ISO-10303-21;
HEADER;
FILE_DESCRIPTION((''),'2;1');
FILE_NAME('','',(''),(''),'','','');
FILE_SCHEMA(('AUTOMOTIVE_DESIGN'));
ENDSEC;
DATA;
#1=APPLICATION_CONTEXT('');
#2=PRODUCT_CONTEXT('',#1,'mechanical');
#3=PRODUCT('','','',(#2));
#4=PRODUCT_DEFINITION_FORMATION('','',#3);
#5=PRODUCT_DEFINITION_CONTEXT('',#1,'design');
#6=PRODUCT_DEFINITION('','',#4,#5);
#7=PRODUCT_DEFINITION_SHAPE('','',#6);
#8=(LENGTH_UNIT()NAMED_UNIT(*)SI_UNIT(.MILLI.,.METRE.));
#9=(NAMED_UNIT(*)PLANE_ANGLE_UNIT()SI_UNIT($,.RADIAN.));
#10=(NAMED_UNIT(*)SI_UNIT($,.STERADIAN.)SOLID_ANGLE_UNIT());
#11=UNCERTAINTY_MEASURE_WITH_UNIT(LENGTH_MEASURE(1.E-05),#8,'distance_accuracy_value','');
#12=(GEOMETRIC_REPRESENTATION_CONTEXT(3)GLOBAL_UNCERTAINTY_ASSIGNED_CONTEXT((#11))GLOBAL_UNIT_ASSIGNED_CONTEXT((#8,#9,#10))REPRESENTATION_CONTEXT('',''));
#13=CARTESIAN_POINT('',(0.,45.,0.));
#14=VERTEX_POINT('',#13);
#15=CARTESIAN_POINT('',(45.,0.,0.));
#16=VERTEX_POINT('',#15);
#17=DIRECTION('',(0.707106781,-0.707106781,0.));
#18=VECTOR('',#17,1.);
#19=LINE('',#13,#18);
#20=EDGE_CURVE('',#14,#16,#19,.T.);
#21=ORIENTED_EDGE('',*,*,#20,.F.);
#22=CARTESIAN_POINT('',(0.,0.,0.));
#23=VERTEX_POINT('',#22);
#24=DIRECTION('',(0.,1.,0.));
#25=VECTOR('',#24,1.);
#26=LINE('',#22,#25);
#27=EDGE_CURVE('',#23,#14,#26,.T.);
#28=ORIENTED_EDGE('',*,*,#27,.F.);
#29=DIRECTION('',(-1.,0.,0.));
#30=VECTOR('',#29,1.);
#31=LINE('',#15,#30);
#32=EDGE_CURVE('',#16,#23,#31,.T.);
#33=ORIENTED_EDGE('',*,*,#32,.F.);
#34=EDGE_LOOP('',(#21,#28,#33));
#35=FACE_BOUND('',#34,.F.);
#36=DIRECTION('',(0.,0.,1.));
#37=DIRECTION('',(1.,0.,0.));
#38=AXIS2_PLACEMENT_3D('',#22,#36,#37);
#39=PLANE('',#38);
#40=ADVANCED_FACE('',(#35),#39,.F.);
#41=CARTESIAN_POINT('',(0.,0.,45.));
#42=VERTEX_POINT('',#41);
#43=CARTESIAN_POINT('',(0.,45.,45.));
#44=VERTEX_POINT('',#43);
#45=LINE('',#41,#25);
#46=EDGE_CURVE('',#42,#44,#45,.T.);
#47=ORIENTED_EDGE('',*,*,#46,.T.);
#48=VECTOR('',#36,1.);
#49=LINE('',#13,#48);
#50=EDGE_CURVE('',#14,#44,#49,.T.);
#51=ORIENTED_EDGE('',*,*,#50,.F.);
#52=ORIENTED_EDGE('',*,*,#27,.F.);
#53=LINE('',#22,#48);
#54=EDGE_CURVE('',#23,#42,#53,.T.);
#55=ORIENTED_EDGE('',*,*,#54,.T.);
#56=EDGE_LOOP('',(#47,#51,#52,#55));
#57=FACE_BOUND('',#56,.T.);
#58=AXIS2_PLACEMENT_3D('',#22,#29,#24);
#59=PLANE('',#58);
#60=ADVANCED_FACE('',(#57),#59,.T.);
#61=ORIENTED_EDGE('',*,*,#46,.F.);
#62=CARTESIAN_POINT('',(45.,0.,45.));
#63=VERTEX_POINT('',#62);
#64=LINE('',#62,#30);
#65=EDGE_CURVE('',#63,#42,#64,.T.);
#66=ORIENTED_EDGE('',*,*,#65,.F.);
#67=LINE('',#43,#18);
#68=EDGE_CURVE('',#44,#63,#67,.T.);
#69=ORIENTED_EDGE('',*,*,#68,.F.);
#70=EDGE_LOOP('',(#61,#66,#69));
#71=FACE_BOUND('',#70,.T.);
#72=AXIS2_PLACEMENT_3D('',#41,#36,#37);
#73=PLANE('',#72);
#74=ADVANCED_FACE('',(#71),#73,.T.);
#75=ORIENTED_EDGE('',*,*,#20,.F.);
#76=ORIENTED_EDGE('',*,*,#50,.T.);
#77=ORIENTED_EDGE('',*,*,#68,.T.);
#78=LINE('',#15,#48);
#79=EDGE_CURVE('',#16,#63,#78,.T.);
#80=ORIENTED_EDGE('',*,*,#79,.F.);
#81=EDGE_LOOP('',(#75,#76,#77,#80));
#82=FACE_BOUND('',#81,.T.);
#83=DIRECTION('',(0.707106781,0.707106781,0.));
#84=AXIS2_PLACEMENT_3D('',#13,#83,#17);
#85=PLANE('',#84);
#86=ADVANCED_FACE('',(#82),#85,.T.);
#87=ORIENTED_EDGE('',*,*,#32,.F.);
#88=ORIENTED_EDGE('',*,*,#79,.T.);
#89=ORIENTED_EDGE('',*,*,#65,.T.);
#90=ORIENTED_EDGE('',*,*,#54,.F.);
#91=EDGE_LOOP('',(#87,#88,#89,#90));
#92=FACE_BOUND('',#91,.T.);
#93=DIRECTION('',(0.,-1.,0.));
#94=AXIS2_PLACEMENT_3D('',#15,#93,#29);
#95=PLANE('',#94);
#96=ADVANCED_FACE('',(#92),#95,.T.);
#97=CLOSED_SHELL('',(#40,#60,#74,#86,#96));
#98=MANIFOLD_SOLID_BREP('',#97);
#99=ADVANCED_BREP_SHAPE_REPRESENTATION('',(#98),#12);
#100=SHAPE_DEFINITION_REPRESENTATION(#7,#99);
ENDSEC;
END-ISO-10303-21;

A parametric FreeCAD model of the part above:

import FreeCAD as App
import Part
import Sketcher

V = App.Vector

doc = App.newDocument("Part")
params = doc.addObject("Spreadsheet::Sheet", "Params")
for row, (alias, value) in enumerate([
    ("sketch1_width", "45 mm"),
    ("pad1_length", "45 mm"),
], start=1):
    params.set(f"A{row}", alias)
    params.set(f"B{row}", "=" + value)
    params.setAlias(f"B{row}", alias)

body = doc.addObject("PartDesign::Body", "Body")

# Sketch on XY plane
sketch1 = doc.addObject("Sketcher::SketchObject", "Sketch")
body.addObject(sketch1)
sketch1.AttachmentSupport = (doc.XY_Plane, [""])
sketch1.MapMode = "FlatFace"
sketch1.addGeometry(Part.LineSegment(V(0, 45, 0), V(0, 0, 0)), False)
sketch1.addGeometry(Part.LineSegment(V(0, 0, 0), V(45, 0, 0)), False)
sketch1.addGeometry(Part.LineSegment(V(45, 0, 0), V(0, 45, 0)), False)
sketch1.addConstraint(Sketcher.Constraint("Coincident", 0, 2, 1, 1))
sketch1.addConstraint(Sketcher.Constraint("Coincident", 1, 2, 2, 1))
sketch1.addConstraint(Sketcher.Constraint("Coincident", 2, 2, 0, 1))
sketch1.addConstraint(Sketcher.Constraint("Vertical", 0))
sketch1.addConstraint(Sketcher.Constraint("Horizontal", 1))
sketch1.addConstraint(Sketcher.Constraint("Coincident", 0, 2, -1, 1))
sketch1.addConstraint(Sketcher.Constraint("Equal", 1, 0))
sketch1.addConstraint(Sketcher.Constraint("DistanceX", 1, 1, 1, 2, 45.0))
sketch1.setExpression("Constraints[7]", "Params.sketch1_width")
pad1 = doc.addObject("PartDesign::Pad", "Pad")
body.addObject(pad1)
pad1.Profile = sketch1
pad1.setExpression("Length", "Params.pad1_length")

doc.recompute()
